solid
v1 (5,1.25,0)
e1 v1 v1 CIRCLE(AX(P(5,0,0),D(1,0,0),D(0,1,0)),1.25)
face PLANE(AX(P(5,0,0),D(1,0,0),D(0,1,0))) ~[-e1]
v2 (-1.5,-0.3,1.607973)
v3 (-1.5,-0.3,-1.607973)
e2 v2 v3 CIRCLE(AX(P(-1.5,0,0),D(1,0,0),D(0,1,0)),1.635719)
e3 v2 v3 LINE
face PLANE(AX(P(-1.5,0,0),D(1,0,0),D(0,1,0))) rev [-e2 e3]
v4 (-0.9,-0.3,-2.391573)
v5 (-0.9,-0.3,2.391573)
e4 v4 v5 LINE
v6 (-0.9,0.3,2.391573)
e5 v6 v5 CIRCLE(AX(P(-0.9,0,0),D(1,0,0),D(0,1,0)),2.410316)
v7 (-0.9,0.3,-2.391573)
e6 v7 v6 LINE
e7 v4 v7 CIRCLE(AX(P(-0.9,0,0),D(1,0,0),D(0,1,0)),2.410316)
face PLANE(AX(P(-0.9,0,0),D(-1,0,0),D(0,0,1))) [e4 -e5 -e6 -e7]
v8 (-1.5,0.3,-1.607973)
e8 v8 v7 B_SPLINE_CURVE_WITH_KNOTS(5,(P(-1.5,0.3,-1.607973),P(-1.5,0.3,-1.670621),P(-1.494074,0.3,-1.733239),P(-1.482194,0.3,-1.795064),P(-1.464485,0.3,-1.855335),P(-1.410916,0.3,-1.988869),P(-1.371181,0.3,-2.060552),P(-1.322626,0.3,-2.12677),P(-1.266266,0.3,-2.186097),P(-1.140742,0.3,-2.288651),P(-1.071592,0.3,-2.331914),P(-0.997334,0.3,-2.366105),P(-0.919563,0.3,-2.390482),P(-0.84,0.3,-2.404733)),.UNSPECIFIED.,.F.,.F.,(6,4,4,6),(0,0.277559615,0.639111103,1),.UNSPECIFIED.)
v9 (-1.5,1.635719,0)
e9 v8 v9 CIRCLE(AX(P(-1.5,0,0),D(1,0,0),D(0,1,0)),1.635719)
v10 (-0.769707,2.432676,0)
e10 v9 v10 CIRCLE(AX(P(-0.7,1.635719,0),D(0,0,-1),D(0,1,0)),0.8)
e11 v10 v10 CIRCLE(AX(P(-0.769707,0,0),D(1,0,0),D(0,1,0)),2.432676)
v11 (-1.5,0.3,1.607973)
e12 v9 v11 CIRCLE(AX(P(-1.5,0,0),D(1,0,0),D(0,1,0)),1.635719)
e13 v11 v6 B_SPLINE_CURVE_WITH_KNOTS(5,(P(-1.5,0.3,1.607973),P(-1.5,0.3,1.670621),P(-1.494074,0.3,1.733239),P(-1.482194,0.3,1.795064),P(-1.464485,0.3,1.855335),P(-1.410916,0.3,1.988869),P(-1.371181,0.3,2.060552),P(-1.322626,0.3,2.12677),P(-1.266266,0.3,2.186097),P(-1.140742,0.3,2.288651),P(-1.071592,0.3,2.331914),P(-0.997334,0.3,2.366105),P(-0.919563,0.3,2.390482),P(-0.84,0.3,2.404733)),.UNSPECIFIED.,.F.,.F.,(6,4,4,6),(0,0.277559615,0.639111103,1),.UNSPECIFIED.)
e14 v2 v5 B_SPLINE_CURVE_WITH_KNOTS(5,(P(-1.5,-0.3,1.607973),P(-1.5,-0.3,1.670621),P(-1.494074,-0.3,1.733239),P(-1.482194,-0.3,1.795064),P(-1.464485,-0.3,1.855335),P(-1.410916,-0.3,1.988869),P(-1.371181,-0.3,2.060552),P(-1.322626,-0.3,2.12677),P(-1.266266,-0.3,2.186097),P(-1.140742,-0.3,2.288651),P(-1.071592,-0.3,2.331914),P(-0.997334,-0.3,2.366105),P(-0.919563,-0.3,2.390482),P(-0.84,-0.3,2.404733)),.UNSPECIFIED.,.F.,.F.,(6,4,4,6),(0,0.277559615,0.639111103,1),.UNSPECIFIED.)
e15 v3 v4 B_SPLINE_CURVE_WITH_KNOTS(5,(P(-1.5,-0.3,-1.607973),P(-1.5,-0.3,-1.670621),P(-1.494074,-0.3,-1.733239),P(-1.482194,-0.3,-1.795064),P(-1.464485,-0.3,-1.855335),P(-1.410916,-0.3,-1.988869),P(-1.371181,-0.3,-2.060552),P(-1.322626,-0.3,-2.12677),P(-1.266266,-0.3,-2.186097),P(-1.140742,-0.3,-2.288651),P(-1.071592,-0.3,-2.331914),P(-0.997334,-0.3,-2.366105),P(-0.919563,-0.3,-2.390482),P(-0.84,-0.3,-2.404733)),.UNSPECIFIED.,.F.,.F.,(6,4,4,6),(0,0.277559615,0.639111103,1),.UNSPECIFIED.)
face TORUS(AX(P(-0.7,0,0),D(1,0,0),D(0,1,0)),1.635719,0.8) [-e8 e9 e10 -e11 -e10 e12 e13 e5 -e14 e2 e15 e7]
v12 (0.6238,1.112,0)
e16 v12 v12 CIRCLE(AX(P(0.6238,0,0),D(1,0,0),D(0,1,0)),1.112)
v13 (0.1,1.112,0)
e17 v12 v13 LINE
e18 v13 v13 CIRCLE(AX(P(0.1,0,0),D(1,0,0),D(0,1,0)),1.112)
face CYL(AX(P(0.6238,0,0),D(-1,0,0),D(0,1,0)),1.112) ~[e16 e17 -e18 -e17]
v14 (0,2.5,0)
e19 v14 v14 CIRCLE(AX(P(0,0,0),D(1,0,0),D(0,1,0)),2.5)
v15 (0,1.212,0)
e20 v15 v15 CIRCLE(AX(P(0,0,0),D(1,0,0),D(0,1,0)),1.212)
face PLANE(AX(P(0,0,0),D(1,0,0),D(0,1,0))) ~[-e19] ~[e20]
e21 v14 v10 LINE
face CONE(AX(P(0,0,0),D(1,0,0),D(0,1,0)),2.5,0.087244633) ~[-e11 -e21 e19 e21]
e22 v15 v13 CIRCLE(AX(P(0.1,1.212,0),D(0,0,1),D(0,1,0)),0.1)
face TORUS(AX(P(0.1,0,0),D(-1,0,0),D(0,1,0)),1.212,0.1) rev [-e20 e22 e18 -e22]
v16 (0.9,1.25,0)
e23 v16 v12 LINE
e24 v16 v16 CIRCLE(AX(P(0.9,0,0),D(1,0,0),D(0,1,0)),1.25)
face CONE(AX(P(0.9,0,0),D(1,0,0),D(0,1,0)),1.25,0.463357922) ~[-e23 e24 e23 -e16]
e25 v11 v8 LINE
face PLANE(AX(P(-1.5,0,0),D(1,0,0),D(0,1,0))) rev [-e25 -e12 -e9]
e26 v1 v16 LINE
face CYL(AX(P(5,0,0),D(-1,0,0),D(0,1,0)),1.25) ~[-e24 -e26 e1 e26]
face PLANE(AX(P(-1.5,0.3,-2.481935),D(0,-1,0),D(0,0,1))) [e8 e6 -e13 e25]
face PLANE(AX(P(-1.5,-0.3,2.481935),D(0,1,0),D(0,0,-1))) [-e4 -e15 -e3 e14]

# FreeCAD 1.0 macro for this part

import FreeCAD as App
import Part
import Sketcher
from FreeCAD import Vector


def edges_at(feature, points):
    """Names of the edges that pass closest to the given points."""
    edges = feature.Shape.Edges
    near = lambda p: min(range(len(edges)), key=lambda i: edges[i].distToShape(Part.Vertex(*p))[0])
    return sorted({f"Edge{near(p) + 1}" for p in points})

doc = App.newDocument("Part")
params = doc.addObject("Spreadsheet::Sheet", "Params")
for row, (alias, value) in enumerate([
    ("sketch1_width", "4.1 mm"),
    ("sketch1_height", "1.25 mm"),
    ("revolution_angle", "360 deg"),
    ("fillet_radius", "0.8 mm"),
    ("sketch2_height", "5 mm"),
    ("sketch2_width", "0.6 mm"),
    ("pocket1_length", "0.6 mm"),
    ("fillet2_radius", "0.1 mm"),
], start=1):
    params.set(f"A{row}", alias)
    params.set(f"B{row}", "=" + value)
    params.setAlias(f"B{row}", alias)

body = doc.addObject("PartDesign::Body", "Body")

# Sketch on XY plane
sketch1 = doc.addObject("Sketcher::SketchObject", "Sketch")
body.addObject(sketch1)
sketch1.AttachmentSupport = (doc.XY_Plane, [""])
sketch1.MapMode = "FlatFace"
sketch1.addGeometry([
    Part.LineSegment(Vector(-1.5, 2.37, 0), Vector(-1.5, 0, 0)),  # 0
    Part.LineSegment(Vector(-1.5, 0, 0), Vector(5, 0, 0)),  # 1
    Part.LineSegment(Vector(5, 0, 0), Vector(5, 1.25, 0)),  # 2
    Part.LineSegment(Vector(5, 1.25, 0), Vector(0.9, 1.25, 0)),  # 3
    Part.LineSegment(Vector(0.9, 1.25, 0), Vector(0.62, 1.11, 0)),  # 4
    Part.LineSegment(Vector(0.62, 1.11, 0), Vector(0, 1.11, 0)),  # 5
    Part.LineSegment(Vector(0, 1.11, 0), Vector(0, 2.5, 0)),  # 6
    Part.LineSegment(Vector(0, 2.5, 0), Vector(-1.5, 2.37, 0)),  # 7
], False)
sketch1.addConstraint([
    Sketcher.Constraint("Coincident", 0, 2, 1, 1),
    Sketcher.Constraint("Coincident", 1, 2, 2, 1),
    Sketcher.Constraint("Coincident", 2, 2, 3, 1),
    Sketcher.Constraint("Coincident", 3, 2, 4, 1),
    Sketcher.Constraint("Coincident", 4, 2, 5, 1),
    Sketcher.Constraint("Coincident", 5, 2, 6, 1),
    Sketcher.Constraint("Coincident", 6, 2, 7, 1),
    Sketcher.Constraint("Coincident", 7, 2, 0, 1),
    Sketcher.Constraint("Vertical", 0),
    Sketcher.Constraint("Horizontal", 1),
    Sketcher.Constraint("Vertical", 2),
    Sketcher.Constraint("Horizontal", 3),
    Sketcher.Constraint("Horizontal", 5),
    Sketcher.Constraint("Vertical", 6),
    Sketcher.Constraint("PointOnObject", 0, 2, -1),
    Sketcher.Constraint("PointOnObject", 5, 2, -2),
    Sketcher.Constraint("DistanceX", 3, 2, 3, 1, 4.1),
    Sketcher.Constraint("DistanceX", -1, 1, 1, 2, 5.0),
    Sketcher.Constraint("DistanceX", 0, 2, -1, 1, 1.5),
    Sketcher.Constraint("DistanceY", -1, 1, 6, 2, 2.5),
    Sketcher.Constraint("DistanceY", 2, 1, 2, 2, 1.25),
    Sketcher.Constraint("DistanceX", 4, 2, 3, 2, 0.2762),
    Sketcher.Constraint("DistanceY", 6, 1, 6, 2, 1.388),
    Sketcher.Constraint("DistanceY", 0, 2, 0, 1, 2.3688),
])
sketch1.setExpression("Constraints[16]", "Params.sketch1_width")
sketch1.setExpression("Constraints[20]", "Params.sketch1_height")
revolution = doc.addObject("PartDesign::Revolution", "Revolution")
body.addObject(revolution)
revolution.Profile = sketch1
revolution.ReferenceAxis = (sketch1, ["H_Axis"])
revolution.setExpression("Angle", "Params.revolution_angle")
doc.recompute()

fillet = doc.addObject("PartDesign::Fillet", "Fillet")
body.addObject(fillet)
fillet.Base = (revolution, edges_at(revolution, [(-1.5, -2.369, 0)]))
fillet.setExpression("Radius", "Params.fillet_radius")

# Sketch on YZ plane
sketch2 = doc.addObject("Sketcher::SketchObject", "Sketch001")
body.addObject(sketch2)
sketch2.AttachmentSupport = (doc.YZ_Plane, [""])
sketch2.MapMode = "FlatFace"
sketch2.AttachmentOffset = App.Placement(Vector(0, 0, -1.5), App.Rotation())
sketch2.addGeometry([
    Part.LineSegment(Vector(-0.3, 2.5, 0), Vector(0.3, 2.5, 0)),
    Part.LineSegment(Vector(0.3, 2.5, 0), Vector(0.3, -2.5, 0)),
    Part.LineSegment(Vector(0.3, -2.5, 0), Vector(-0.3, -2.5, 0)),
    Part.LineSegment(Vector(-0.3, -2.5, 0), Vector(-0.3, 2.5, 0)),
], False)
sketch2.addConstraint([
    Sketcher.Constraint("Coincident", 0, 2, 1, 1),
    Sketcher.Constraint("Coincident", 1, 2, 2, 1),
    Sketcher.Constraint("Coincident", 2, 2, 3, 1),
    Sketcher.Constraint("Coincident", 3, 2, 0, 1),
    Sketcher.Constraint("Horizontal", 0),
    Sketcher.Constraint("Vertical", 1),
    Sketcher.Constraint("Horizontal", 2),
    Sketcher.Constraint("Vertical", 3),
    Sketcher.Constraint("Symmetric", 0, 2, 2, 2, -1, 1),
    Sketcher.Constraint("DistanceY", 1, 2, 1, 1, 5.0),
    Sketcher.Constraint("DistanceX", 0, 1, 0, 2, 0.6),
])
sketch2.setExpression("Constraints[9]", "Params.sketch2_height")
sketch2.setExpression("Constraints[10]", "Params.sketch2_width")
pocket1 = doc.addObject("PartDesign::Pocket", "Pocket")
body.addObject(pocket1)
pocket1.Profile = sketch2
pocket1.setExpression("Length", "Params.pocket1_length")
pocket1.Reversed = True
doc.recompute()

fillet2 = doc.addObject("PartDesign::Fillet", "Fillet001")
body.addObject(fillet2)
fillet2.Base = (pocket1, edges_at(pocket1, [(0, -1.112, 0)]))
fillet2.setExpression("Radius", "Params.fillet2_radius")

doc.recompute()
